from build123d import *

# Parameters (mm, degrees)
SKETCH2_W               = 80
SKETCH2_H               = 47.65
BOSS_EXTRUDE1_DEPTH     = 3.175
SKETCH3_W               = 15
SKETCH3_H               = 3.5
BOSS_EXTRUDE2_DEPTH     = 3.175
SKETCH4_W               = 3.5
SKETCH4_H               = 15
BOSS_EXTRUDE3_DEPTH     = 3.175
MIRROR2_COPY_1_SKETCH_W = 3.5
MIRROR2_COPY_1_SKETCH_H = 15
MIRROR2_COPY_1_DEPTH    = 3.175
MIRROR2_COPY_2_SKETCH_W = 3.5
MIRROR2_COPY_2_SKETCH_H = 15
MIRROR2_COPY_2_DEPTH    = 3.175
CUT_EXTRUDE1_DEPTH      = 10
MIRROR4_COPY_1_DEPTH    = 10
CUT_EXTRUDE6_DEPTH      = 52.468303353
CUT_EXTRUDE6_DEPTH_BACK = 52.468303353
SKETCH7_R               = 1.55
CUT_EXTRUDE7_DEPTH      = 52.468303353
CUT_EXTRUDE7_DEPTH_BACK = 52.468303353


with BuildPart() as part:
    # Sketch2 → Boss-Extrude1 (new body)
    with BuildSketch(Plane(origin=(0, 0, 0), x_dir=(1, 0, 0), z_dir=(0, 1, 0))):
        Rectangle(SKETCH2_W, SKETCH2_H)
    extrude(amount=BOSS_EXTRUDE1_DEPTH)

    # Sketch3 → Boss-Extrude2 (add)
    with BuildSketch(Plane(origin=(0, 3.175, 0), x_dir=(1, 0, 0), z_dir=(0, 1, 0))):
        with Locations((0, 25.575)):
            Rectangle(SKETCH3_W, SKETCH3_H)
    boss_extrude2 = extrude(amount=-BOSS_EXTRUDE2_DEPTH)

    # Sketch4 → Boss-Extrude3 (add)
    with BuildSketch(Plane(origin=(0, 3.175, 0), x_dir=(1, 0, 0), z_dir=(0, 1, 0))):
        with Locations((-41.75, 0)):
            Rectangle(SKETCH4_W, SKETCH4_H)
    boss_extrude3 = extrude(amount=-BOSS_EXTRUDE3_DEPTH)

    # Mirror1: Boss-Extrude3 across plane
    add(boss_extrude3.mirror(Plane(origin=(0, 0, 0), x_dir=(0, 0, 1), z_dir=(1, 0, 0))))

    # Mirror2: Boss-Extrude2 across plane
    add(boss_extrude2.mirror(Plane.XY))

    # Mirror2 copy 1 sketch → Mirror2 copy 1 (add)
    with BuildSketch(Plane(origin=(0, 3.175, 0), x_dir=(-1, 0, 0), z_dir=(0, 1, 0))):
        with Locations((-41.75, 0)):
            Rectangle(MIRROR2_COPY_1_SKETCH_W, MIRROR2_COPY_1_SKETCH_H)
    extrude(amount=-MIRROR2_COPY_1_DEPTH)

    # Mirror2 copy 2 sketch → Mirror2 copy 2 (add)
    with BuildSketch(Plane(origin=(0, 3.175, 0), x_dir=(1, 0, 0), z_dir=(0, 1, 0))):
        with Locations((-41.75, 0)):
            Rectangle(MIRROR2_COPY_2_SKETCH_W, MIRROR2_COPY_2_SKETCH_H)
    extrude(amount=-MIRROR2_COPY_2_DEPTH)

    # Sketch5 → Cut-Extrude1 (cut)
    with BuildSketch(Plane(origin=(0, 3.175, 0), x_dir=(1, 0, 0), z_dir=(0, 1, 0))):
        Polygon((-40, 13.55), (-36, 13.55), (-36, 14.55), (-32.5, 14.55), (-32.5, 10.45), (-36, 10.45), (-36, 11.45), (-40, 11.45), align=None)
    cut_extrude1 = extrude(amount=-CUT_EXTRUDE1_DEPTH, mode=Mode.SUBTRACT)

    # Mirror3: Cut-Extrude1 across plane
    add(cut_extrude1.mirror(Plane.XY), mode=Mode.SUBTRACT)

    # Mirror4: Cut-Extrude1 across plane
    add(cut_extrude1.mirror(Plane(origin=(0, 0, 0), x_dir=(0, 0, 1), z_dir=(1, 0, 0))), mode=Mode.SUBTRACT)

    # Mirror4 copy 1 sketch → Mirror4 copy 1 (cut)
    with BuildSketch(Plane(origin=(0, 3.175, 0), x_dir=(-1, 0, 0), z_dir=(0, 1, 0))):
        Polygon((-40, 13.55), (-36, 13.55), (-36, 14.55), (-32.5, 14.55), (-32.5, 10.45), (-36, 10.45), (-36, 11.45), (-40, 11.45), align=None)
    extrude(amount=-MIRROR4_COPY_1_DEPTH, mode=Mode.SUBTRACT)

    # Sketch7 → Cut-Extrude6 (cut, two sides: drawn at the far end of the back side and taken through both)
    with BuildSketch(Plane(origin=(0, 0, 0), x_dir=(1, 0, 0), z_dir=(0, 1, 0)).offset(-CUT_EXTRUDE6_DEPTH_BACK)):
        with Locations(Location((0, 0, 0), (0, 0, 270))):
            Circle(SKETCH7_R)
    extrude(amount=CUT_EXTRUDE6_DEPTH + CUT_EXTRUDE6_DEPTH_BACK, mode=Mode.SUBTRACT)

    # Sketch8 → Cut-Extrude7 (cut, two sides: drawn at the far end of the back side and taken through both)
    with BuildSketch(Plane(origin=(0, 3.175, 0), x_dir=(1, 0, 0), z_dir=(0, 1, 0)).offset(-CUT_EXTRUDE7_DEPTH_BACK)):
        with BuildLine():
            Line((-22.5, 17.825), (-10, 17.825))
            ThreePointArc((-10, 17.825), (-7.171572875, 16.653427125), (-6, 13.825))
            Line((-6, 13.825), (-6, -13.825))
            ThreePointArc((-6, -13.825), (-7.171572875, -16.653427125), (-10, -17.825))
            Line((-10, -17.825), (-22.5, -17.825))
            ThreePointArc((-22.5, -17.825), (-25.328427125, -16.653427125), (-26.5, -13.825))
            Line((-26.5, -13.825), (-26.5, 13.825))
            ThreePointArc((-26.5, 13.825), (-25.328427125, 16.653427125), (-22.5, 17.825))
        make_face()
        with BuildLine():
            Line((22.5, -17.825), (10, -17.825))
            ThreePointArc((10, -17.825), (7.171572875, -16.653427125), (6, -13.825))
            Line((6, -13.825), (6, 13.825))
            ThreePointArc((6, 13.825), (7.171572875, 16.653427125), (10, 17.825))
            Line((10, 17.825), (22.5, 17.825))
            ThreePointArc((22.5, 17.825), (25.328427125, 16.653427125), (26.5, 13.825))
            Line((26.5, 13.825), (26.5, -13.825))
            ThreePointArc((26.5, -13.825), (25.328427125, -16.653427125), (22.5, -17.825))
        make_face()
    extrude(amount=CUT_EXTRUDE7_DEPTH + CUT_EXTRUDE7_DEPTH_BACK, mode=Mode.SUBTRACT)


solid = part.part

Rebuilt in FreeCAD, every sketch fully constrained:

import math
import FreeCAD as App
import Part
import Sketcher

V = App.Vector
Q = App.Units.Quantity

doc = App.newDocument("Part")
body = doc.addObject("PartDesign::Body", "Body")

# Sketch on XZ plane
sketch1 = doc.addObject("Sketcher::SketchObject", "Sketch")
body.addObject(sketch1)
sketch1.AttachmentSupport = (doc.XZ_Plane, [""])
sketch1.MapMode = "FlatFace"
sketch1.addGeometry([
    Part.LineSegment(V(-40, -24, 0), V(-40, 24, 0)),
    Part.LineSegment(V(-40, 24, 0), V(40, 24, 0)),
    Part.LineSegment(V(40, 24, 0), V(40, -24, 0)),
    Part.LineSegment(V(40, -24, 0), V(-40, -24, 0)),
], False)
sketch1.addConstraint([
    Sketcher.Constraint("Coincident", 0, 2, 1, 1),
    Sketcher.Constraint("Coincident", 1, 2, 2, 1),
    Sketcher.Constraint("Coincident", 2, 2, 3, 1),
    Sketcher.Constraint("Coincident", 3, 2, 0, 1),
    Sketcher.Constraint("Vertical", 0),
    Sketcher.Constraint("Horizontal", 1),
    Sketcher.Constraint("Vertical", 2),
    Sketcher.Constraint("Horizontal", 3),
    Sketcher.Constraint("Symmetric", 0, 2, 2, 2, -1, 1),
    Sketcher.Constraint("DistanceX", 1, 1, 1, 2, Q("80 mm")),
    Sketcher.Constraint("DistanceY", 0, 1, 0, 2, Q("47.65 mm")),
])
pad1 = doc.addObject("PartDesign::Pad", "Pad")
body.addObject(pad1)
pad1.Profile = sketch1
pad1.Length = 3.175
pad1.Reversed = True

# Sketch on XZ plane
sketch2 = doc.addObject("Sketcher::SketchObject", "Sketch001")
body.addObject(sketch2)
sketch2.AttachmentSupport = (doc.XZ_Plane, [""])
sketch2.MapMode = "FlatFace"
sketch2.AttachmentOffset = App.Placement(V(0, 0, -3.175), App.Rotation())
sketch2.addGeometry([
    Part.LineSegment(V(-7.5, -27.3, 0), V(-7.5, -23.8, 0)),
    Part.LineSegment(V(-7.5, -23.8, 0), V(7.5, -23.8, 0)),
    Part.LineSegment(V(7.5, -23.8, 0), V(7.5, -27.3, 0)),
    Part.LineSegment(V(7.5, -27.3, 0), V(-7.5, -27.3, 0)),
], False)
sketch2.addConstraint([
    Sketcher.Constraint("Coincident", 0, 2, 1, 1),
    Sketcher.Constraint("Coincident", 1, 2, 2, 1),
    Sketcher.Constraint("Coincident", 2, 2, 3, 1),
    Sketcher.Constraint("Coincident", 3, 2, 0, 1),
    Sketcher.Constraint("Vertical", 0),
    Sketcher.Constraint("Horizontal", 1),
    Sketcher.Constraint("Vertical", 2),
    Sketcher.Constraint("Horizontal", 3),
    Sketcher.Constraint("DistanceX", 1, 1, 1, 2, Q("15 mm")),
    Sketcher.Constraint("DistanceY", 0, 1, 0, 2, Q("3.5 mm")),
    Sketcher.Constraint("DistanceX", 0, 2, -1, 1, Q("7.5 mm")),
    Sketcher.Constraint("DistanceY", 0, 2, -1, 1, Q("23.825 mm")),
])
pad2 = doc.addObject("PartDesign::Pad", "Pad001")
body.addObject(pad2)
pad2.Profile = sketch2
pad2.Length = 3.175

# Sketch on XZ plane
sketch3 = doc.addObject("Sketcher::SketchObject", "Sketch002")
body.addObject(sketch3)
sketch3.AttachmentSupport = (doc.XZ_Plane, [""])
sketch3.MapMode = "FlatFace"
sketch3.AttachmentOffset = App.Placement(V(0, 0, -3.175), App.Rotation())
sketch3.addGeometry([
    Part.LineSegment(V(-43.5, -7.5, 0), V(-43.5, 7.5, 0)),
    Part.LineSegment(V(-43.5, 7.5, 0), V(-40, 7.5, 0)),
    Part.LineSegment(V(-40, 7.5, 0), V(-40, -7.5, 0)),
    Part.LineSegment(V(-40, -7.5, 0), V(-43.5, -7.5, 0)),
], False)
sketch3.addConstraint([
    Sketcher.Constraint("Coincident", 0, 2, 1, 1),
    Sketcher.Constraint("Coincident", 1, 2, 2, 1),
    Sketcher.Constraint("Coincident", 2, 2, 3, 1),
    Sketcher.Constraint("Coincident", 3, 2, 0, 1),
    Sketcher.Constraint("Vertical", 0),
    Sketcher.Constraint("Horizontal", 1),
    Sketcher.Constraint("Vertical", 2),
    Sketcher.Constraint("Horizontal", 3),
    Sketcher.Constraint("DistanceY", 0, 1, 0, 2, Q("15 mm")),
    Sketcher.Constraint("DistanceX", 1, 1, 1, 2, Q("3.5 mm")),
    Sketcher.Constraint("DistanceX", 1, 2, -1, 1, Q("40 mm")),
    Sketcher.Constraint("DistanceY", -1, 1, 0, 2, Q("7.5 mm")),
])
pad3 = doc.addObject("PartDesign::Pad", "Pad002")
body.addObject(pad3)
pad3.Profile = sketch3
pad3.Length = 3.175
doc.recompute()

mirrored = doc.addObject("PartDesign::Mirrored", "Mirrored")
body.addObject(mirrored)
mirrored.Originals = [pad3]
mirrored.MirrorPlane = (doc.YZ_Plane, [""])
body.Tip = mirrored
doc.recompute()

mirrored2 = doc.addObject("PartDesign::Mirrored", "Mirrored001")
body.addObject(mirrored2)
mirrored2.Originals = [pad2]
mirrored2.MirrorPlane = (doc.XY_Plane, [""])
body.Tip = mirrored2

# Sketch on XZ plane
sketch4 = doc.addObject("Sketcher::SketchObject", "Sketch003")
body.addObject(sketch4)
sketch4.AttachmentSupport = (doc.XZ_Plane, [""])
sketch4.MapMode = "FlatFace"
sketch4.AttachmentOffset = App.Placement(V(0, 0, -3.175), App.Rotation())
sketch4.addGeometry([
    Part.LineSegment(V(43.5, 7.5, 0), V(43.5, -7.5, 0)),
    Part.LineSegment(V(43.5, -7.5, 0), V(40, -7.5, 0)),
    Part.LineSegment(V(40, -7.5, 0), V(40, 7.5, 0)),
    Part.LineSegment(V(40, 7.5, 0), V(43.5, 7.5, 0)),
], False)
sketch4.addConstraint([
    Sketcher.Constraint("Coincident", 0, 2, 1, 1),
    Sketcher.Constraint("Coincident", 1, 2, 2, 1),
    Sketcher.Constraint("Coincident", 2, 2, 3, 1),
    Sketcher.Constraint("Coincident", 3, 2, 0, 1),
    Sketcher.Constraint("Vertical", 0),
    Sketcher.Constraint("Horizontal", 1),
    Sketcher.Constraint("Vertical", 2),
    Sketcher.Constraint("Horizontal", 3),
    Sketcher.Constraint("DistanceY", 0, 2, 0, 1, Q("15 mm")),
    Sketcher.Constraint("DistanceX", 1, 2, 1, 1, Q("3.5 mm")),
    Sketcher.Constraint("DistanceX", -1, 1, 1, 2, Q("40 mm")),
    Sketcher.Constraint("DistanceY", 0, 2, -1, 1, Q("7.5 mm")),
])
pad4 = doc.addObject("PartDesign::Pad", "Pad003")
body.addObject(pad4)
pad4.Profile = sketch4
pad4.Length = 3.175

# Sketch on XZ plane
sketch5 = doc.addObject("Sketcher::SketchObject", "Sketch004")
body.addObject(sketch5)
sketch5.AttachmentSupport = (doc.XZ_Plane, [""])
sketch5.MapMode = "FlatFace"
sketch5.AttachmentOffset = App.Placement(V(0, 0, -3.175), App.Rotation())
sketch5.addGeometry([
    Part.LineSegment(V(-43.5, -7.5, 0), V(-43.5, 7.5, 0)),
    Part.LineSegment(V(-43.5, 7.5, 0), V(-40, 7.5, 0)),
    Part.LineSegment(V(-40, 7.5, 0), V(-40, -7.5, 0)),
    Part.LineSegment(V(-40, -7.5, 0), V(-43.5, -7.5, 0)),
], False)
sketch5.addConstraint([
    Sketcher.Constraint("Coincident", 0, 2, 1, 1),
    Sketcher.Constraint("Coincident", 1, 2, 2, 1),
    Sketcher.Constraint("Coincident", 2, 2, 3, 1),
    Sketcher.Constraint("Coincident", 3, 2, 0, 1),
    Sketcher.Constraint("Vertical", 0),
    Sketcher.Constraint("Horizontal", 1),
    Sketcher.Constraint("Vertical", 2),
    Sketcher.Constraint("Horizontal", 3),
    Sketcher.Constraint("DistanceY", 0, 1, 0, 2, Q("15 mm")),
    Sketcher.Constraint("DistanceX", 1, 1, 1, 2, Q("3.5 mm")),
    Sketcher.Constraint("DistanceX", 1, 2, -1, 1, Q("40 mm")),
    Sketcher.Constraint("DistanceY", -1, 1, 0, 2, Q("7.5 mm")),
])
pad5 = doc.addObject("PartDesign::Pad", "Pad004")
body.addObject(pad5)
pad5.Profile = sketch5
pad5.Length = 3.175

# Sketch on XZ plane
sketch6 = doc.addObject("Sketcher::SketchObject", "Sketch005")
body.addObject(sketch6)
sketch6.AttachmentSupport = (doc.XZ_Plane, [""])
sketch6.MapMode = "FlatFace"
sketch6.AttachmentOffset = App.Placement(V(0, 0, -3.175), App.Rotation())
sketch6.addGeometry([
    Part.LineSegment(V(-36, -13.6, 0), V(-40, -13.6, 0)),  # 0
    Part.LineSegment(V(-40, -13.6, 0), V(-40, -11.4, 0)),  # 1
    Part.LineSegment(V(-40, -11.4, 0), V(-36, -11.4, 0)),  # 2
    Part.LineSegment(V(-36, -11.4, 0), V(-36, -10.4, 0)),  # 3
    Part.LineSegment(V(-36, -10.4, 0), V(-32.5, -10.4, 0)),  # 4
    Part.LineSegment(V(-32.5, -10.4, 0), V(-32.5, -14.6, 0)),  # 5
    Part.LineSegment(V(-32.5, -14.6, 0), V(-36, -14.6, 0)),  # 6
    Part.LineSegment(V(-36, -14.6, 0), V(-36, -13.6, 0)),  # 7
], False)
sketch6.addConstraint([
    Sketcher.Constraint("Coincident", 0, 2, 1, 1),
    Sketcher.Constraint("Coincident", 1, 2, 2, 1),
    Sketcher.Constraint("Coincident", 2, 2, 3, 1),
    Sketcher.Constraint("Coincident", 3, 2, 4, 1),
    Sketcher.Constraint("Coincident", 4, 2, 5, 1),
    Sketcher.Constraint("Coincident", 5, 2, 6, 1),
    Sketcher.Constraint("Coincident", 6, 2, 7, 1),
    Sketcher.Constraint("Coincident", 7, 2, 0, 1),
    Sketcher.Constraint("Horizontal", 0),
    Sketcher.Constraint("Vertical", 1),
    Sketcher.Constraint("Horizontal", 2),
    Sketcher.Constraint("Vertical", 3),
    Sketcher.Constraint("Horizontal", 4),
    Sketcher.Constraint("Vertical", 5),
    Sketcher.Constraint("Horizontal", 6),
    Sketcher.Constraint("Vertical", 7),
    Sketcher.Constraint("Vertical", 3, 2, 6, 2),
    Sketcher.Constraint("Equal", 3, 7),
    Sketcher.Constraint("DistanceX", 0, 2, 0, 1, Q("4 mm")),
    Sketcher.Constraint("DistanceY", 3, 1, 3, 2, Q("1 mm")),
    Sketcher.Constraint("DistanceX", 4, 1, 4, 2, Q("3.5 mm")),
    Sketcher.Constraint("DistanceY", 1, 1, 1, 2, Q("2.1 mm")),
    Sketcher.Constraint("DistanceX", 0, 2, -1, 1, Q("40 mm")),
    Sketcher.Constraint("DistanceY", 0, 2, -1, 1, Q("13.55 mm")),
])
pocket1 = doc.addObject("PartDesign::Pocket", "Pocket")
body.addObject(pocket1)
pocket1.Profile = sketch6
pocket1.Length = 10
pocket1.Reversed = True
doc.recompute()

mirrored3 = doc.addObject("PartDesign::Mirrored", "Mirrored002")
body.addObject(mirrored3)
mirrored3.Originals = [pocket1]
mirrored3.MirrorPlane = (doc.XY_Plane, [""])
body.Tip = mirrored3
doc.recompute()

mirrored4 = doc.addObject("PartDesign::Mirrored", "Mirrored003")
body.addObject(mirrored4)
mirrored4.Originals = [pocket1]
mirrored4.MirrorPlane = (doc.YZ_Plane, [""])
body.Tip = mirrored4

# Sketch on XZ plane
sketch7 = doc.addObject("Sketcher::SketchObject", "Sketch006")
body.addObject(sketch7)
sketch7.AttachmentSupport = (doc.XZ_Plane, [""])
sketch7.MapMode = "FlatFace"
sketch7.AttachmentOffset = App.Placement(V(0, 0, -3.175), App.Rotation())
sketch7.addGeometry([
    Part.LineSegment(V(36, 13.6, 0), V(40, 13.6, 0)),  # 0
    Part.LineSegment(V(40, 13.6, 0), V(40, 11.4, 0)),  # 1
    Part.LineSegment(V(40, 11.4, 0), V(36, 11.4, 0)),  # 2
    Part.LineSegment(V(36, 11.4, 0), V(36, 10.4, 0)),  # 3
    Part.LineSegment(V(36, 10.4, 0), V(32.5, 10.4, 0)),  # 4
    Part.LineSegment(V(32.5, 10.4, 0), V(32.5, 14.6, 0)),  # 5
    Part.LineSegment(V(32.5, 14.6, 0), V(36, 14.6, 0)),  # 6
    Part.LineSegment(V(36, 14.6, 0), V(36, 13.6, 0)),  # 7
], False)
sketch7.addConstraint([
    Sketcher.Constraint("Coincident", 0, 2, 1, 1),
    Sketcher.Constraint("Coincident", 1, 2, 2, 1),
    Sketcher.Constraint("Coincident", 2, 2, 3, 1),
    Sketcher.Constraint("Coincident", 3, 2, 4, 1),
    Sketcher.Constraint("Coincident", 4, 2, 5, 1),
    Sketcher.Constraint("Coincident", 5, 2, 6, 1),
    Sketcher.Constraint("Coincident", 6, 2, 7, 1),
    Sketcher.Constraint("Coincident", 7, 2, 0, 1),
    Sketcher.Constraint("Horizontal", 0),
    Sketcher.Constraint("Vertical", 1),
    Sketcher.Constraint("Horizontal", 2),
    Sketcher.Constraint("Vertical", 3),
    Sketcher.Constraint("Horizontal", 4),
    Sketcher.Constraint("Vertical", 5),
    Sketcher.Constraint("Horizontal", 6),
    Sketcher.Constraint("Vertical", 7),
    Sketcher.Constraint("Vertical", 3, 2, 6, 2),
    Sketcher.Constraint("Equal", 3, 7),
    Sketcher.Constraint("DistanceX", 0, 1, 0, 2, Q("4 mm")),
    Sketcher.Constraint("DistanceY", 3, 2, 3, 1, Q("1 mm")),
    Sketcher.Constraint("DistanceX", 4, 2, 4, 1, Q("3.5 mm")),
    Sketcher.Constraint("DistanceY", 1, 2, 1, 1, Q("2.1 mm")),
    Sketcher.Constraint("DistanceX", -1, 1, 0, 2, Q("40 mm")),
    Sketcher.Constraint("DistanceY", -1, 1, 0, 2, Q("13.55 mm")),
])
pocket2 = doc.addObject("PartDesign::Pocket", "Pocket001")
body.addObject(pocket2)
pocket2.Profile = sketch7
pocket2.Length = 10
pocket2.Reversed = True

# Sketch on XZ plane
sketch8 = doc.addObject("Sketcher::SketchObject", "Sketch007")
body.addObject(sketch8)
sketch8.AttachmentSupport = (doc.XZ_Plane, [""])
sketch8.MapMode = "FlatFace"
sketch8.addGeometry(Part.Circle(V(0, 0, 0), V(0, 0, 1), 1.6), False)
sketch8.addConstraint([
    Sketcher.Constraint("Coincident", 0, 3, -1, 1),
    Sketcher.Constraint("Diameter", 0, Q("3.1 mm")),
])
pocket3 = doc.addObject("PartDesign::Pocket", "Pocket002")
body.addObject(pocket3)
pocket3.Profile = sketch8
pocket3.Type = "ThroughAll"
pocket3.Midplane = True

# Sketch on XZ plane
sketch9 = doc.addObject("Sketcher::SketchObject", "Sketch008")
body.addObject(sketch9)
sketch9.AttachmentSupport = (doc.XZ_Plane, [""])
sketch9.MapMode = "FlatFace"
sketch9.AttachmentOffset = App.Placement(V(0, 0, -3.175), App.Rotation())
sketch9.addGeometry([
    Part.LineSegment(V(-10, -17.8, 0), V(-22.5, -17.8, 0)),  # 0
    Part.ArcOfCircle(Part.Circle(V(-22.5, -13.8, 0), V(0, 0, 1), 4), math.radians(180), math.radians(270)),  # 1
    Part.LineSegment(V(-26.5, -13.8, 0), V(-26.5, 13.8, 0)),  # 2
    Part.ArcOfCircle(Part.Circle(V(-22.5, 13.8, 0), V(0, 0, 1), 4), math.radians(90), math.radians(180)),  # 3
    Part.LineSegment(V(-22.5, 17.8, 0), V(-10, 17.8, 0)),  # 4
    Part.ArcOfCircle(Part.Circle(V(-10, 13.8, 0), V(0, 0, 1), 4), math.radians(0), math.radians(90)),  # 5
    Part.LineSegment(V(-6, 13.8, 0), V(-6, -13.8, 0)),  # 6
    Part.ArcOfCircle(Part.Circle(V(-10, -13.8, 0), V(0, 0, 1), 4), math.radians(-90), math.radians(0)),  # 7
    Part.LineSegment(V(10, 17.8, 0), V(22.5, 17.8, 0)),  # 8
    Part.ArcOfCircle(Part.Circle(V(22.5, 13.8, 0), V(0, 0, 1), 4), math.radians(0), math.radians(90)),  # 9
    Part.LineSegment(V(26.5, 13.8, 0), V(26.5, -13.8, 0)),  # 10
    Part.ArcOfCircle(Part.Circle(V(22.5, -13.8, 0), V(0, 0, 1), 4), math.radians(-90), math.radians(0)),  # 11
    Part.LineSegment(V(22.5, -17.8, 0), V(10, -17.8, 0)),  # 12
    Part.ArcOfCircle(Part.Circle(V(10, -13.8, 0), V(0, 0, 1), 4), math.radians(180), math.radians(270)),  # 13
    Part.LineSegment(V(6, -13.8, 0), V(6, 13.8, 0)),  # 14
    Part.ArcOfCircle(Part.Circle(V(10, 13.8, 0), V(0, 0, 1), 4), math.radians(90), math.radians(180)),  # 15
], False)
sketch9.addConstraint([
    Sketcher.Constraint("Tangent", 0, 2, 1, 2),
    Sketcher.Constraint("Tangent", 1, 1, 2, 1),
    Sketcher.Constraint("Tangent", 2, 2, 3, 2),
    Sketcher.Constraint("Tangent", 3, 1, 4, 1),
    Sketcher.Constraint("Tangent", 4, 2, 5, 2),
    Sketcher.Constraint("Tangent", 5, 1, 6, 1),
    Sketcher.Constraint("Tangent", 6, 2, 7, 2),
    Sketcher.Constraint("Tangent", 7, 1, 0, 1),
    Sketcher.Constraint("Tangent", 8, 2, 9, 2),
    Sketcher.Constraint("Tangent", 9, 1, 10, 1),
    Sketcher.Constraint("Tangent", 10, 2, 11, 2),
    Sketcher.Constraint("Tangent", 11, 1, 12, 1),
    Sketcher.Constraint("Tangent", 12, 2, 13, 2),
    Sketcher.Constraint("Tangent", 13, 1, 14, 1),
    Sketcher.Constraint("Tangent", 14, 2, 15, 2),
    Sketcher.Constraint("Tangent", 15, 1, 8, 1),
    Sketcher.Constraint("Horizontal", 0),
    Sketcher.Constraint("Vertical", 2),
    Sketcher.Constraint("Horizontal", 4),
    Sketcher.Constraint("Vertical", 6),
    Sketcher.Constraint("Horizontal", 8),
    Sketcher.Constraint("Vertical", 10),
    Sketcher.Constraint("Horizontal", 12),
    Sketcher.Constraint("Vertical", 14),
    Sketcher.Constraint("Equal", 1, 3),
    Sketcher.Constraint("Equal", 3, 5),
    Sketcher.Constraint("Equal", 5, 7),
    Sketcher.Constraint("Equal", 7, 9),
    Sketcher.Constraint("Equal", 9, 11),
    Sketcher.Constraint("Equal", 11, 13),
    Sketcher.Constraint("Equal", 13, 15),
    Sketcher.Constraint("Symmetric", 1, 3, 9, 3, -1, 1),
    Sketcher.Constraint("Symmetric", 5, 3, 13, 3, -1, 1),
    Sketcher.Constraint("Horizontal", 5, 3, 9, 3),
    Sketcher.Constraint("Radius", 1, Q("4 mm")),
    Sketcher.Constraint("DistanceX", 0, 2, 0, 1, Q("12.5 mm")),
    Sketcher.Constraint("DistanceX", 5, 3, -1, 1, Q("10 mm")),
    Sketcher.Constraint("DistanceY", 2, 1, 2, 2, Q("27.65 mm")),
])
pocket4 = doc.addObject("PartDesign::Pocket", "Pocket003")
body.addObject(pocket4)
pocket4.Profile = sketch9
pocket4.Type = "ThroughAll"
pocket4.Midplane = True

doc.recompute()
